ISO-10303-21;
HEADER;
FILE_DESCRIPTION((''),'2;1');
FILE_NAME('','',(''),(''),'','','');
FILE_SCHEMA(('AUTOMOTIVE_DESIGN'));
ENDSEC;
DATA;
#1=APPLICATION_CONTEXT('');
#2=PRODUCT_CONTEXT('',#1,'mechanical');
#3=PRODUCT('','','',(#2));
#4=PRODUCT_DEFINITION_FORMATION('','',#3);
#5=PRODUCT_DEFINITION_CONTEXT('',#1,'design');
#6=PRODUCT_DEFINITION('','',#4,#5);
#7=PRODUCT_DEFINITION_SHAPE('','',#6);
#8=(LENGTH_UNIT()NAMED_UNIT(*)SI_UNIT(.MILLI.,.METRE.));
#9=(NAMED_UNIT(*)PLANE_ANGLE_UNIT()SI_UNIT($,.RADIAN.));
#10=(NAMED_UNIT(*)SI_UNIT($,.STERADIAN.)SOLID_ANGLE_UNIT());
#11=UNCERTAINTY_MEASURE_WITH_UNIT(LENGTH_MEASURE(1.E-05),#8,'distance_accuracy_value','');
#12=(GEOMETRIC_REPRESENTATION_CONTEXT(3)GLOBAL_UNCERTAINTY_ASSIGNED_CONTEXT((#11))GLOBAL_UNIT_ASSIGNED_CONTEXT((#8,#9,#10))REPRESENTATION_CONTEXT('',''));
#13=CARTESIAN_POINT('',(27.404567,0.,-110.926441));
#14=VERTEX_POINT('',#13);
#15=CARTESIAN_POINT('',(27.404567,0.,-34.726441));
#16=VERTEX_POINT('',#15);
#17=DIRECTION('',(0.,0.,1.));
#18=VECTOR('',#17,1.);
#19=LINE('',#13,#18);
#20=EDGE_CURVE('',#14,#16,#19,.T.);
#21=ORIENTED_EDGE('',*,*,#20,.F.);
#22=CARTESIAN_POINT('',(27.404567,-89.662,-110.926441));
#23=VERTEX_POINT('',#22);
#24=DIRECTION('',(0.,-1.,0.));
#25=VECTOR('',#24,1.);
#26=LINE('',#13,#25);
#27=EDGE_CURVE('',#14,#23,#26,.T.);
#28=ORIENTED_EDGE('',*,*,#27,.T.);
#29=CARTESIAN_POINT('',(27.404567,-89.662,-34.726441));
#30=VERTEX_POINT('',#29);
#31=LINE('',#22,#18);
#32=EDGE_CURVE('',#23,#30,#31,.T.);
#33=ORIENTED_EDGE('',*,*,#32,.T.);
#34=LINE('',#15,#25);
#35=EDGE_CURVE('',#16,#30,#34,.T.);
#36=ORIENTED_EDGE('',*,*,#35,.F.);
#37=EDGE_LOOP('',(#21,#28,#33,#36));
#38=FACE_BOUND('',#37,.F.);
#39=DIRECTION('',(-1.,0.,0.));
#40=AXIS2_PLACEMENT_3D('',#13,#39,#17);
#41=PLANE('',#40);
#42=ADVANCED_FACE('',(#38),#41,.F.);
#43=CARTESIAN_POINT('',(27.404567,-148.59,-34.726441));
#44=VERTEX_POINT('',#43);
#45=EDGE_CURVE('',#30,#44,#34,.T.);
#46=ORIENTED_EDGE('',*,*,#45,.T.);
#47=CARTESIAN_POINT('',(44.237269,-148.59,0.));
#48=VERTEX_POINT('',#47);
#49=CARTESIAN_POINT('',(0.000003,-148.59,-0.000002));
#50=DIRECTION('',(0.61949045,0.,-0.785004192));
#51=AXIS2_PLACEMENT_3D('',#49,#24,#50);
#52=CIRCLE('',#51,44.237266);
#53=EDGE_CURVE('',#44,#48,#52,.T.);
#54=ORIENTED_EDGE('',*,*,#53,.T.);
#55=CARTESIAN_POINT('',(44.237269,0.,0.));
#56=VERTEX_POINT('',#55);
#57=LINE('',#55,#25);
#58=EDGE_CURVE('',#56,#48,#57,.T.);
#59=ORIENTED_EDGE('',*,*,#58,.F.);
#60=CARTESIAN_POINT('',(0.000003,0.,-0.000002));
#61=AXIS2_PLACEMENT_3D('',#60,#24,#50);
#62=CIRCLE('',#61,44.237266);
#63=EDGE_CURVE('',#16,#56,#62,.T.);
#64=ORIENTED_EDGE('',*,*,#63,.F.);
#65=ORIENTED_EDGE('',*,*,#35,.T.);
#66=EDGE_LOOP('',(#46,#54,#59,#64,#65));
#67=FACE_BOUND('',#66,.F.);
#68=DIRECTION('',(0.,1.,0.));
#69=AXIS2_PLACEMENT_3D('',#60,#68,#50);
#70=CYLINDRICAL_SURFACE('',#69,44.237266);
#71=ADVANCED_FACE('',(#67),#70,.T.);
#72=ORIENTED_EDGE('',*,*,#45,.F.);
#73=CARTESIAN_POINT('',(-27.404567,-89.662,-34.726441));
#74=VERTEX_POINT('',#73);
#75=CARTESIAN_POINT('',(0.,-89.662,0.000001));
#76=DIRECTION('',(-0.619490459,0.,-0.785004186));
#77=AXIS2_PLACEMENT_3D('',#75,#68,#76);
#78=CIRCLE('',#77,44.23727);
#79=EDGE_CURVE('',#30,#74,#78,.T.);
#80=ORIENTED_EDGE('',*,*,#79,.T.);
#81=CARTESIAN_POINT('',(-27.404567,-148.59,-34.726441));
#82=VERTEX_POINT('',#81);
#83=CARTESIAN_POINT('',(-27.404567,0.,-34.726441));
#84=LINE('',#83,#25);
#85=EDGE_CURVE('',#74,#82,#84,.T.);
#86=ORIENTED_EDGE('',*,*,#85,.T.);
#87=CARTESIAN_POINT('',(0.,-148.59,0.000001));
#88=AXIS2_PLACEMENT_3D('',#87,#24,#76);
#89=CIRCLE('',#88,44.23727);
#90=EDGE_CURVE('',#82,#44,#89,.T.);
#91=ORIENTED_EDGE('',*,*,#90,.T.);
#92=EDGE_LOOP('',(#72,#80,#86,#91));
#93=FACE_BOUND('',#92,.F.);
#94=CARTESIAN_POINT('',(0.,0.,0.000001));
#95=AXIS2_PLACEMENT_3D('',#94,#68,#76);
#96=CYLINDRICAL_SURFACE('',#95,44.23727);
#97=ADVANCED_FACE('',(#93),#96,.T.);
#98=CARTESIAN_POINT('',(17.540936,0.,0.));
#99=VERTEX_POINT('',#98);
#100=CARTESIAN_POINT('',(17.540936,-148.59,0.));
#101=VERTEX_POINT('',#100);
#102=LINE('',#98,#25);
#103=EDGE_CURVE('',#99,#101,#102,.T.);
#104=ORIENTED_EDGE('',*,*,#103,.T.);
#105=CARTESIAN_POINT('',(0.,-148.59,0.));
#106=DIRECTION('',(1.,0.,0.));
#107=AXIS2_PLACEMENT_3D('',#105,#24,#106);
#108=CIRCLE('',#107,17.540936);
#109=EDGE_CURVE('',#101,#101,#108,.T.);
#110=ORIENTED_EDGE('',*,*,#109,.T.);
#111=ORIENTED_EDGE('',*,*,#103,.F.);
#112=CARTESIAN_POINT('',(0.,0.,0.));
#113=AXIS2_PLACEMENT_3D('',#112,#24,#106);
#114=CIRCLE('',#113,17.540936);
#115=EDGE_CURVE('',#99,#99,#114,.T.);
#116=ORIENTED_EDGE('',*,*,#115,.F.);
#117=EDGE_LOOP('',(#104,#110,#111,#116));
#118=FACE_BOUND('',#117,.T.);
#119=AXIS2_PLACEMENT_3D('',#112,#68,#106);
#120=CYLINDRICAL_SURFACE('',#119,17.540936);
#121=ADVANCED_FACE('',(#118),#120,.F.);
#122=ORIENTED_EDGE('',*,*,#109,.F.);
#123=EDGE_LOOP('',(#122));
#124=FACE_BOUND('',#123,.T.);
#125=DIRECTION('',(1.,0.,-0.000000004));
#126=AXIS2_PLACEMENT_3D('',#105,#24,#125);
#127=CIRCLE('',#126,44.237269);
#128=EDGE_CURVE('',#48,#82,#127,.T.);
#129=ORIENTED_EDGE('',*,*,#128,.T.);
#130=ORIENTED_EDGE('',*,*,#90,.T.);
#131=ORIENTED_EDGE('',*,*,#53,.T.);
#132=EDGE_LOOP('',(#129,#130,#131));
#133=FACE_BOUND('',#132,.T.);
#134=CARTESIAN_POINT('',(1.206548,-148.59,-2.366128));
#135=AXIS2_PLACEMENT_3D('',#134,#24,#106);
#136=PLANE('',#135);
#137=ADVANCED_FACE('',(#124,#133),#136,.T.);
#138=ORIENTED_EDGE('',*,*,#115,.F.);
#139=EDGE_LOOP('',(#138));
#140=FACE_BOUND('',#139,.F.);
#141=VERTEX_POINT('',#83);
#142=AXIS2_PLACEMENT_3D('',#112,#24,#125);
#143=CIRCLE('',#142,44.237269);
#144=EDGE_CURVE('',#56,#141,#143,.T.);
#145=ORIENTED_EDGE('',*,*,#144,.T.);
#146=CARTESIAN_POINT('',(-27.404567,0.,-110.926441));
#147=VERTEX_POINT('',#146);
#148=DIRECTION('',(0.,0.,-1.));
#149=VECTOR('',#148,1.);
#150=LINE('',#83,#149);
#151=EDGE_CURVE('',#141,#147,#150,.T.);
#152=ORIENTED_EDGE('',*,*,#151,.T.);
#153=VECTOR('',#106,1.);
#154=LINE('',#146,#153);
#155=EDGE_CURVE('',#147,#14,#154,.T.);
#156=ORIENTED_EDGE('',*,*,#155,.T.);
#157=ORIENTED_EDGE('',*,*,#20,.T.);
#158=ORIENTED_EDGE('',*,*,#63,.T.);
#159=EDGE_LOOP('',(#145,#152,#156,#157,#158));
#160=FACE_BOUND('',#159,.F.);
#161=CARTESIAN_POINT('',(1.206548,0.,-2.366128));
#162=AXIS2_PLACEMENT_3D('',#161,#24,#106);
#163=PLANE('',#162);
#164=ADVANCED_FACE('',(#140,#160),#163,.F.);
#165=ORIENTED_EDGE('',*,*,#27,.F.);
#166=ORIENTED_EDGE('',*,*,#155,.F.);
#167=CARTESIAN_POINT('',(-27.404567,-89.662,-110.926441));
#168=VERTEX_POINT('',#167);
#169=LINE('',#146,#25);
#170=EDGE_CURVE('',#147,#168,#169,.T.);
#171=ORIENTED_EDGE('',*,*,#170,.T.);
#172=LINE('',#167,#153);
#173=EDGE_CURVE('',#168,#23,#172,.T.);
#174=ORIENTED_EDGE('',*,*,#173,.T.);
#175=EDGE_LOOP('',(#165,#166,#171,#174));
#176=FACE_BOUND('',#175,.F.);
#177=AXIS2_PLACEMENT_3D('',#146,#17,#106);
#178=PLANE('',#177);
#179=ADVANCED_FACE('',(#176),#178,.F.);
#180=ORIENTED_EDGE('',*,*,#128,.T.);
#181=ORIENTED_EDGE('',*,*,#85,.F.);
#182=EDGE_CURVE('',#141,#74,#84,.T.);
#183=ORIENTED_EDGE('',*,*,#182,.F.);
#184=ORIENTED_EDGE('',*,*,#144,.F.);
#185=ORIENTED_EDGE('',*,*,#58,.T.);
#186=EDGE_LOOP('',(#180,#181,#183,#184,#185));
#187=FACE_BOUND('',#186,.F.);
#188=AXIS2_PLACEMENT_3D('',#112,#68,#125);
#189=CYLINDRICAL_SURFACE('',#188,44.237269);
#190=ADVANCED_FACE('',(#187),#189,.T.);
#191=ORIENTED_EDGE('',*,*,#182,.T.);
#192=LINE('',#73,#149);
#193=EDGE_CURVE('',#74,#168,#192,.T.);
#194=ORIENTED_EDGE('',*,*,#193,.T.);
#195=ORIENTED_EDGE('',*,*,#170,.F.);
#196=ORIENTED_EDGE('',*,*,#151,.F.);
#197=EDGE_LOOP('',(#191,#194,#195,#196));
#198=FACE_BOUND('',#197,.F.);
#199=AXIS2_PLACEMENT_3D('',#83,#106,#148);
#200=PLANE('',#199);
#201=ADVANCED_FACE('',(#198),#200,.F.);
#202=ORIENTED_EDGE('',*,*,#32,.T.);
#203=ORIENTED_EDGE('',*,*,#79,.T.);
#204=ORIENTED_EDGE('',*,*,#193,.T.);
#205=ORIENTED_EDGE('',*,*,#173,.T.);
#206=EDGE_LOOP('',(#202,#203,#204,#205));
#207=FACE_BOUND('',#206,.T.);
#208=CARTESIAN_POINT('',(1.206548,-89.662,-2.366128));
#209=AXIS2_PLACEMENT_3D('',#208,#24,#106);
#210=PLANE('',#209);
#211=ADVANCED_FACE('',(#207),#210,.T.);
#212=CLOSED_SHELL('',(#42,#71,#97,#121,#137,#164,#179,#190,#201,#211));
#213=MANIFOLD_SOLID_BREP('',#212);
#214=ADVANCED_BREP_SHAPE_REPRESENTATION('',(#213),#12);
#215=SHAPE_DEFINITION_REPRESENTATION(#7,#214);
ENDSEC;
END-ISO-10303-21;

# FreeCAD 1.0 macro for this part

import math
import FreeCAD as App
import Part
import Sketcher
Q = App.Units.Quantity

doc = App.newDocument("Part")
params = doc.addObject("Spreadsheet::Sheet", "Params")
for row, (alias, value) in enumerate([
    ("pad1_length", "5.85 in"),
    ("sketch2_height", "3 in"),
    ("pad2_length", "3.53 in"),
], start=1):
    params.set(f"A{row}", alias)
    params.set(f"B{row}", "=" + value)
    params.setAlias(f"B{row}", alias)

body = doc.addObject("PartDesign::Body", "Body")

# Sketch on XZ plane
sketch1 = body.newObject("Sketcher::SketchObject", "Sketch")
sketch1.AttachmentSupport = (doc.getObject("XZ_Plane"), [""])
sketch1.MapMode = "FlatFace"
sketch1.addGeometry([
    Part.ArcOfCircle(Part.Circle(App.Vector(0.000003, -0.000002, 0), App.Vector(0, 0, 1), 44.237266), math.radians(-51.721066), math.radians(0.000003)),
    Part.ArcOfCircle(Part.Circle(App.Vector(0, 0, 0), App.Vector(0, 0, 1), 44.237269), math.radians(0), math.radians(231.721065)),
    Part.ArcOfCircle(Part.Circle(App.Vector(0, 0.000001, 0), App.Vector(0, 0, 1), 44.23727), math.radians(-128.278935), math.radians(-51.721065)),
    Part.Circle(App.Vector(0, 0, 0), App.Vector(0, 0, 1), 17.540936),
], False)
sketch1.addConstraint([
    Sketcher.Constraint("Tangent", 0, 2, 1, 1),
    Sketcher.Constraint("Tangent", 1, 2, 2, 1),
    Sketcher.Constraint("Tangent", 2, 2, 0, 1),
    Sketcher.Constraint("Coincident", 0, 3, -1, 1),
    Sketcher.Constraint("Coincident", 3, 3, -1, 1),
    Sketcher.Constraint("PointOnObject", 0, 2, -1),
    Sketcher.Constraint("Horizontal", 1, 2, 2, 2),
    Sketcher.Constraint("Diameter", 3, Q("35.081872 mm")),
    Sketcher.Constraint("Radius", 1, Q("44.237269 mm")),
    Sketcher.Constraint("DistanceY", 1, 2, -1, 1, Q("34.726441 mm")),
])
pad1 = body.newObject("PartDesign::Pad", "Pad")
pad1.Profile = sketch1
pad1.setExpression("Length", "Params.pad1_length")

# Sketch on XZ plane
sketch2 = body.newObject("Sketcher::SketchObject", "Sketch001")
sketch2.AttachmentSupport = (doc.getObject("XZ_Plane"), [""])
sketch2.MapMode = "FlatFace"
sketch2.addGeometry([
    Part.ArcOfCircle(Part.Circle(App.Vector(0.000003, -0.000002, 0), App.Vector(0, 0, 1), 44.237266), math.radians(-51.721066), math.radians(0.000003)),  # 0
    Part.ArcOfCircle(Part.Circle(App.Vector(0, 0, 0), App.Vector(0, 0, 1), 44.237269), math.radians(0), math.radians(231.721065)),  # 1
    Part.LineSegment(App.Vector(-27.404567, -34.726441, 0), App.Vector(-27.404567, -110.926441, 0)),  # 2
    Part.LineSegment(App.Vector(-27.404567, -110.926441, 0), App.Vector(27.404567, -110.926441, 0)),  # 3
    Part.LineSegment(App.Vector(27.404567, -110.926441, 0), App.Vector(27.404567, -34.726441, 0)),  # 4
    Part.Circle(App.Vector(0, 0, 0), App.Vector(0, 0, 1), 17.540936),  # 5
], False)
sketch2.addConstraint([
    Sketcher.Constraint("Tangent", 0, 2, 1, 1),
    Sketcher.Constraint("Coincident", 1, 2, 2, 1),
    Sketcher.Constraint("Coincident", 2, 2, 3, 1),
    Sketcher.Constraint("Coincident", 3, 2, 4, 1),
    Sketcher.Constraint("Coincident", 4, 2, 0, 1),
    Sketcher.Constraint("Vertical", 2),
    Sketcher.Constraint("Horizontal", 3),
    Sketcher.Constraint("Vertical", 4),
    Sketcher.Constraint("Coincident", 0, 3, -1, 1),
    Sketcher.Constraint("Coincident", 5, 3, -1, 1),
    Sketcher.Constraint("Symmetric", 1, 2, 4, 2, -2),
    Sketcher.Constraint("PointOnObject", 0, 2, -1),
    Sketcher.Constraint("DistanceY", 2, 2, 2, 1, Q("3 in")),
    Sketcher.Constraint("Diameter", 5, Q("35.081872 mm")),
    Sketcher.Constraint("Radius", 1, Q("44.237269 mm")),
    Sketcher.Constraint("DistanceX", 3, 2, 0, 2, Q("16.832702 mm")),
])
sketch2.setExpression("Constraints[12]", "Params.sketch2_height")
pad2 = body.newObject("PartDesign::Pad", "Pad001")
pad2.Profile = sketch2
pad2.setExpression("Length", "Params.pad2_length")

doc.recompute()
